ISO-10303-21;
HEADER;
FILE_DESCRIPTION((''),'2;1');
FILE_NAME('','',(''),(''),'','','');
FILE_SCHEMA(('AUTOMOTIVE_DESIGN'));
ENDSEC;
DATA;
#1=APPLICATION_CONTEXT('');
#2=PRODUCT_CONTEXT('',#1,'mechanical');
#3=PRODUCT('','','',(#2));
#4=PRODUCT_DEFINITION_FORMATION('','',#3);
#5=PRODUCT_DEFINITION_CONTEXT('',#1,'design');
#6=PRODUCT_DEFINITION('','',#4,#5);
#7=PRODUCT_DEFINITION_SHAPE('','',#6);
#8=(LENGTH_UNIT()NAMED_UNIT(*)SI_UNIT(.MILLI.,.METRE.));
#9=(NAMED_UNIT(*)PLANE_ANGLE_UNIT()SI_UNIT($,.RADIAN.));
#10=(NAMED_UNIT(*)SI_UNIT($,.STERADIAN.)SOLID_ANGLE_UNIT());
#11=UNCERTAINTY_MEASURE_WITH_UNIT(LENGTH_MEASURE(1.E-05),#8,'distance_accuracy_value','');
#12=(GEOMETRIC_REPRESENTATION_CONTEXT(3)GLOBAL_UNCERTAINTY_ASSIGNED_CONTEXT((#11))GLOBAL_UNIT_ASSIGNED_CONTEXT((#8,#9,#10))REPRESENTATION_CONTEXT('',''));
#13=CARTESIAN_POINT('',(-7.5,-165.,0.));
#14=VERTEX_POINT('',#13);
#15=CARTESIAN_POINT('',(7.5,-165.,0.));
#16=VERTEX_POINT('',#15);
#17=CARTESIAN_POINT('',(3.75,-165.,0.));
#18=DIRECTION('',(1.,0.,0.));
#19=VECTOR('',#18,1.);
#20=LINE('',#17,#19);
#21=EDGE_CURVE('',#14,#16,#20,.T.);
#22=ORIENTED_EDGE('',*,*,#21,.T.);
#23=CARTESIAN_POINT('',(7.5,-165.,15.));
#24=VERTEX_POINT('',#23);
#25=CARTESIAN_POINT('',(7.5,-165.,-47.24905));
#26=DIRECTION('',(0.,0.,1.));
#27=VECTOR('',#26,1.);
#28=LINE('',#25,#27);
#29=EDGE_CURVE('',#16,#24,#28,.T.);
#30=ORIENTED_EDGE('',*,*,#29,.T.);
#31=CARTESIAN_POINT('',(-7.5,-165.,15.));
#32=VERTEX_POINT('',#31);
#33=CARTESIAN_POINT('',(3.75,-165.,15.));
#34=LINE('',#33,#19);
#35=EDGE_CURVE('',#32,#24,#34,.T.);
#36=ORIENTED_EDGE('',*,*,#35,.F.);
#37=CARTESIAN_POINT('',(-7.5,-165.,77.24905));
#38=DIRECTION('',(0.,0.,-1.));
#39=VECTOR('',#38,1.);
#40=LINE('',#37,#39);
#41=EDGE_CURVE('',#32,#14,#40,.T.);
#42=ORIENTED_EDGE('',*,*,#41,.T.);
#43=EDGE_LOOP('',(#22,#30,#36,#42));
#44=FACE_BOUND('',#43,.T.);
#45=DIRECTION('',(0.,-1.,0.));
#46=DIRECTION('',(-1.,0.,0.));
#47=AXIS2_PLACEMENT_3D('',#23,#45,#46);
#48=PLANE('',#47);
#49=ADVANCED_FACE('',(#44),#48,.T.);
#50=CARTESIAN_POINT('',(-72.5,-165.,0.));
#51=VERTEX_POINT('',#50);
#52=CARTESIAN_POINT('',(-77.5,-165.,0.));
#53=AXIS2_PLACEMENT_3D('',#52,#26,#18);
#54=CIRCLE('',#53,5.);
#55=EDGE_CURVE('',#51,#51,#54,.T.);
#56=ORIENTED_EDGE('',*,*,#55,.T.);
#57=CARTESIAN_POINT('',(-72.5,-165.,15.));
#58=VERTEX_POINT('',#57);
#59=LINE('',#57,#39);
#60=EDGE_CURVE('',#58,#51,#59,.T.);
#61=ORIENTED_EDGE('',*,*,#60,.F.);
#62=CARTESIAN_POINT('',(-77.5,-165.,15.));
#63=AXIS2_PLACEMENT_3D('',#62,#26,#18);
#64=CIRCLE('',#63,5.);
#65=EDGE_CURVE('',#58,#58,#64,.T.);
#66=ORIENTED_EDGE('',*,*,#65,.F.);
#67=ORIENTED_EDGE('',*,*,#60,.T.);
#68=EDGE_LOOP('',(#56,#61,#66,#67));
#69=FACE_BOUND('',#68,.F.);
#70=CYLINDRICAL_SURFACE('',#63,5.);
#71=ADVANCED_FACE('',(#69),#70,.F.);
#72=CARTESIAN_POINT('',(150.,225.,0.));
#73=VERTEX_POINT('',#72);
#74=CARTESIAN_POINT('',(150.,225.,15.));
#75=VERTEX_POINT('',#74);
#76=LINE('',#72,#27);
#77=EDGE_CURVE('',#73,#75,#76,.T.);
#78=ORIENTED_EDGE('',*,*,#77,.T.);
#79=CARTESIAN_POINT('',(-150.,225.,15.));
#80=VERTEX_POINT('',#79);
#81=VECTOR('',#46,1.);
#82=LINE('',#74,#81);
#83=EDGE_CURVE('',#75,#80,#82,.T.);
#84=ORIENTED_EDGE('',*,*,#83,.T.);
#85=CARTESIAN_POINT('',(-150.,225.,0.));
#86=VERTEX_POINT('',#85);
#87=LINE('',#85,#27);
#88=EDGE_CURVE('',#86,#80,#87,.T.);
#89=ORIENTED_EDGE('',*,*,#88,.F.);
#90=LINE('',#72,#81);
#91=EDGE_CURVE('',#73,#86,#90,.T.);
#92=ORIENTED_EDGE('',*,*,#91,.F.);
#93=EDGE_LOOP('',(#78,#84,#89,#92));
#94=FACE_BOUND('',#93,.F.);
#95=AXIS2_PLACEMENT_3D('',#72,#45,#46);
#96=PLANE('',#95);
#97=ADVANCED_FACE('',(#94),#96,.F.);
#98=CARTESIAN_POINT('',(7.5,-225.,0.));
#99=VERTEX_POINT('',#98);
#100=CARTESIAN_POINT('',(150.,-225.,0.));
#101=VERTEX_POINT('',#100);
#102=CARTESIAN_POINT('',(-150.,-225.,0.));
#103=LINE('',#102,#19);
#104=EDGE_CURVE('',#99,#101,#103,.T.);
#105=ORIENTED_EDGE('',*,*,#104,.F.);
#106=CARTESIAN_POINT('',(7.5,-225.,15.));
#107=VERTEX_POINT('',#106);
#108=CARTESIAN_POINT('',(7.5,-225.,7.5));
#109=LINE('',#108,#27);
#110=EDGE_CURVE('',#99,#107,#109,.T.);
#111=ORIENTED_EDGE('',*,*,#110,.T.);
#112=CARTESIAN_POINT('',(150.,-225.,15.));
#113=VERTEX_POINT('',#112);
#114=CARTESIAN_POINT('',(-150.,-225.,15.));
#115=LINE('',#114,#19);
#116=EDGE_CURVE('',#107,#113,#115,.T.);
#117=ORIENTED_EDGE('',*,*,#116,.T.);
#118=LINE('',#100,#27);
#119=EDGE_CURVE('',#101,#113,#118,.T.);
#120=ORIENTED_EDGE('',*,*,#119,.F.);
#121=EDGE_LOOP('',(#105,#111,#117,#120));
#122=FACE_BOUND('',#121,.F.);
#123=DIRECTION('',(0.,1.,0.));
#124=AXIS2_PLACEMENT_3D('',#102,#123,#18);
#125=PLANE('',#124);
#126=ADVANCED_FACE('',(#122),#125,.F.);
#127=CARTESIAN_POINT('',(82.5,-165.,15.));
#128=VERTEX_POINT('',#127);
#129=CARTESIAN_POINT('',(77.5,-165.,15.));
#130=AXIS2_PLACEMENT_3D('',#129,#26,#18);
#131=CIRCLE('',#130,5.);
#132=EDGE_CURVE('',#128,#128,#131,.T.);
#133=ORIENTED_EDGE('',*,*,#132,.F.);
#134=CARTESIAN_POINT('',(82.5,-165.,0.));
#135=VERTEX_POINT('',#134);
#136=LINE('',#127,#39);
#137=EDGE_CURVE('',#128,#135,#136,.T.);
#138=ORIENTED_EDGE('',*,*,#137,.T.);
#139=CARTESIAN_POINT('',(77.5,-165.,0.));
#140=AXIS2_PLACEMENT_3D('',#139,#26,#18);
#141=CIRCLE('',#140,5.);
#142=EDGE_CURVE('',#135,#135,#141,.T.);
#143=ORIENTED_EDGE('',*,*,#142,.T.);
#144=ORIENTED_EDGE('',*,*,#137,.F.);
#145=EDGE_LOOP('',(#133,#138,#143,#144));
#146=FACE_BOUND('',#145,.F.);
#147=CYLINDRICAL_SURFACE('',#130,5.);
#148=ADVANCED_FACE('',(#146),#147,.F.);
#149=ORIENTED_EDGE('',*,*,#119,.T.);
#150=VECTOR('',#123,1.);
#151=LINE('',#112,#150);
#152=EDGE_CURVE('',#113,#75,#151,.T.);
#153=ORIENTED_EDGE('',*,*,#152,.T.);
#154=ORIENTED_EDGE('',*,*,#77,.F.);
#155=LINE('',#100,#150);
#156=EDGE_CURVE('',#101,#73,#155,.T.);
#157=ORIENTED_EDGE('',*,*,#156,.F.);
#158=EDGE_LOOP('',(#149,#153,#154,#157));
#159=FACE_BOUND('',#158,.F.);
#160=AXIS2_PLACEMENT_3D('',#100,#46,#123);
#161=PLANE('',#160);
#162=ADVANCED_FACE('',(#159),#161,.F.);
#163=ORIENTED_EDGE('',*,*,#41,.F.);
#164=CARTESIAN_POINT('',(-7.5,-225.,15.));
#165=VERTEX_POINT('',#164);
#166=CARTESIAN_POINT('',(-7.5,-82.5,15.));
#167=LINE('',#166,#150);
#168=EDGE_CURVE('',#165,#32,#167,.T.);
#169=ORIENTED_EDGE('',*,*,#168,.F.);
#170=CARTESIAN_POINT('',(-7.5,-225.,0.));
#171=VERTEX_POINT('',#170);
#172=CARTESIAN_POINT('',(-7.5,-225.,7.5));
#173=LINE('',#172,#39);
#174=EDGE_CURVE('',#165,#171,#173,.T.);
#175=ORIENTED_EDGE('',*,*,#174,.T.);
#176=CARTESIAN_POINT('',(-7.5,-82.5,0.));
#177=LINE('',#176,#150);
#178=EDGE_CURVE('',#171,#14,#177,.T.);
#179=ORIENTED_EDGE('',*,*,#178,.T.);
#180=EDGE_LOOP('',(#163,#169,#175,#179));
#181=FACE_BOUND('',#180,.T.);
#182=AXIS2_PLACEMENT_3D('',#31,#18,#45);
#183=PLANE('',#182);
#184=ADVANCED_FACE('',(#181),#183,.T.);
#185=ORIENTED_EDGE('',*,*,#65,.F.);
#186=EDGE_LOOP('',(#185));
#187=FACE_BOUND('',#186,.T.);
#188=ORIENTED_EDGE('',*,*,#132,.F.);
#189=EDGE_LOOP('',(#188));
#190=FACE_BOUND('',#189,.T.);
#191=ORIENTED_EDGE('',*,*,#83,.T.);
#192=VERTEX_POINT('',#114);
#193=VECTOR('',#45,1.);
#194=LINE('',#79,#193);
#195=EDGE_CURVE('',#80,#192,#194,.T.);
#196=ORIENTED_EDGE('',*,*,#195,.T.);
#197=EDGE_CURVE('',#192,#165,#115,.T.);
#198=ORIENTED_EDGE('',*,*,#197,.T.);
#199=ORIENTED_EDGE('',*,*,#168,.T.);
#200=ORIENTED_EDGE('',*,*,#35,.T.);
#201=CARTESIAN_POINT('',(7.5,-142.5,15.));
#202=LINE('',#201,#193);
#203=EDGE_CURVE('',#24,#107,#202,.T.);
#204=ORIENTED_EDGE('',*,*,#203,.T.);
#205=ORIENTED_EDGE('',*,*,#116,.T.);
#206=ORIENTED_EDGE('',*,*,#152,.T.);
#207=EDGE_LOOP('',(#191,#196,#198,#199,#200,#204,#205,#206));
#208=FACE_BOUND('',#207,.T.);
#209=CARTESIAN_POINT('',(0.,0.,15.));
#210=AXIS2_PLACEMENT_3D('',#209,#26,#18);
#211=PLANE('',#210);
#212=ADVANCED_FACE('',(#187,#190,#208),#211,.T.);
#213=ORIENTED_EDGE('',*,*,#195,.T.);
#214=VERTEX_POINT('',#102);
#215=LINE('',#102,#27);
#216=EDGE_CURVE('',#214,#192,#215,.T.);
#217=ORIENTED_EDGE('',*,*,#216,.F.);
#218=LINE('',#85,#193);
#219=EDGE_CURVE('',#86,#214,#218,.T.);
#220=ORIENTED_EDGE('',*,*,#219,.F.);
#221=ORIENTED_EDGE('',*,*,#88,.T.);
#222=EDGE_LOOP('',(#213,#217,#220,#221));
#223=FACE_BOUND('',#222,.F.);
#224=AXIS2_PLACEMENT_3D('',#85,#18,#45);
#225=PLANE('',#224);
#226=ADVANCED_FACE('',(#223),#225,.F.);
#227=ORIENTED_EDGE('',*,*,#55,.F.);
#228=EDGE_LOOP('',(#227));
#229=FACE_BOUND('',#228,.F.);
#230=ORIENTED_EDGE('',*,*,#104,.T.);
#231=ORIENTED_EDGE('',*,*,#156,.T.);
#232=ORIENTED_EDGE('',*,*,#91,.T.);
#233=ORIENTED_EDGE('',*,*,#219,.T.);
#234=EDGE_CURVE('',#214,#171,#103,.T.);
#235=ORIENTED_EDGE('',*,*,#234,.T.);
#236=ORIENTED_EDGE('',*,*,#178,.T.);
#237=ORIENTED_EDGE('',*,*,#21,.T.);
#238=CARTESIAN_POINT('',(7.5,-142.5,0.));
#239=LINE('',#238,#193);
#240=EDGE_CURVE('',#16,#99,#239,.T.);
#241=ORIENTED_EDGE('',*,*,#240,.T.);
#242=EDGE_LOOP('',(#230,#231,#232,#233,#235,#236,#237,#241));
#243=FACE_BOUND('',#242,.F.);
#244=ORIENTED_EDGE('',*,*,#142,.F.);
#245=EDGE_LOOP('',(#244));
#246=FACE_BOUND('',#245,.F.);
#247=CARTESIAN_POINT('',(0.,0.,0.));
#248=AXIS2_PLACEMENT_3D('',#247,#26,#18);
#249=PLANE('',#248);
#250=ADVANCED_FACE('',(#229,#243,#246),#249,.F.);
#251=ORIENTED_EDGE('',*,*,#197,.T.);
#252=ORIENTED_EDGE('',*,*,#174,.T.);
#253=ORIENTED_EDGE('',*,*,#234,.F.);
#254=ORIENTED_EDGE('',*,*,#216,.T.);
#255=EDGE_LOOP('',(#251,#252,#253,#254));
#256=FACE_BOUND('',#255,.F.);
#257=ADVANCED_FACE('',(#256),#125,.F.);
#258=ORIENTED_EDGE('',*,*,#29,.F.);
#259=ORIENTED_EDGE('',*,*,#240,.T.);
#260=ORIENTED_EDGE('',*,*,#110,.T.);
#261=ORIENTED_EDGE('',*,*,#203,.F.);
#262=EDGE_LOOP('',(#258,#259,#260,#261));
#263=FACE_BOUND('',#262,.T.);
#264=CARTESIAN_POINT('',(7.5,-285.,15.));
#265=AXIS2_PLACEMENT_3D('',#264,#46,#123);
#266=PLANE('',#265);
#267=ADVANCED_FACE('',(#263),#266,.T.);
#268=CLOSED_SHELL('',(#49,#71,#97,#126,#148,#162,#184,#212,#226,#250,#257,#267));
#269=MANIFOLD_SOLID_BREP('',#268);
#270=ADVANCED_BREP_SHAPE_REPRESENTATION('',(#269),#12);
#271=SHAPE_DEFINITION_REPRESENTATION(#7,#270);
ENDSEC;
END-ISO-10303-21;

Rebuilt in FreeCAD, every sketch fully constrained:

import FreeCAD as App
import Part
import Sketcher
from FreeCAD import Vector

doc = App.newDocument("Part")
body = doc.addObject("PartDesign::Body", "Body")

sketch1 = body.newObject("Sketcher::SketchObject", "Sketch")
sketch1.AttachmentSupport = (doc.getObject("XY_Plane"), [""])
sketch1.MapMode = "FlatFace"
sketch1.addGeometry(Part.LineSegment(Vector(-150, 225, 0), Vector(-150, -225, 0)), False)
sketch1.addGeometry(Part.LineSegment(Vector(-150, -225, 0), Vector(150, -225, 0)), False)
sketch1.addGeometry(Part.LineSegment(Vector(150, -225, 0), Vector(150, 225, 0)), False)
sketch1.addGeometry(Part.LineSegment(Vector(150, 225, 0), Vector(-150, 225, 0)), False)
sketch1.addConstraint(Sketcher.Constraint("Coincident", 0, 2, 1, 1))
sketch1.addConstraint(Sketcher.Constraint("Coincident", 1, 2, 2, 1))
sketch1.addConstraint(Sketcher.Constraint("Coincident", 2, 2, 3, 1))
sketch1.addConstraint(Sketcher.Constraint("Coincident", 3, 2, 0, 1))
sketch1.addConstraint(Sketcher.Constraint("Vertical", 0))
sketch1.addConstraint(Sketcher.Constraint("Horizontal", 1))
sketch1.addConstraint(Sketcher.Constraint("Vertical", 2))
sketch1.addConstraint(Sketcher.Constraint("Horizontal", 3))
sketch1.addConstraint(Sketcher.Constraint("Symmetric", 0, 2, 2, 2, -1, 1))
sketch1.addConstraint(Sketcher.Constraint("DistanceX", 1, 1, 1, 2, 300.0))
sketch1.addConstraint(Sketcher.Constraint("DistanceY", 0, 2, 0, 1, 450.0))
pad1 = body.newObject("PartDesign::Pad", "Pad")
pad1.Profile = sketch1
pad1.Length = 15

sketch2 = body.newObject("Sketcher::SketchObject", "Sketch001")
sketch2.AttachmentSupport = (doc.getObject("XY_Plane"), [""])
sketch2.MapMode = "FlatFace"
sketch2.AttachmentOffset = App.Placement(Vector(0, 0, 15), App.Rotation())
sketch2.addGeometry(Part.LineSegment(Vector(-7.5, -165, 0), Vector(-7.5, -285, 0)), False)
sketch2.addGeometry(Part.LineSegment(Vector(-7.5, -285, 0), Vector(7.5, -285, 0)), False)
sketch2.addGeometry(Part.LineSegment(Vector(7.5, -285, 0), Vector(7.5, -165, 0)), False)
sketch2.addGeometry(Part.LineSegment(Vector(7.5, -165, 0), Vector(-7.5, -165, 0)), False)
sketch2.addConstraint(Sketcher.Constraint("Coincident", 0, 2, 1, 1))
sketch2.addConstraint(Sketcher.Constraint("Coincident", 1, 2, 2, 1))
sketch2.addConstraint(Sketcher.Constraint("Coincident", 2, 2, 3, 1))
sketch2.addConstraint(Sketcher.Constraint("Coincident", 3, 2, 0, 1))
sketch2.addConstraint(Sketcher.Constraint("Vertical", 0))
sketch2.addConstraint(Sketcher.Constraint("Horizontal", 1))
sketch2.addConstraint(Sketcher.Constraint("Vertical", 2))
sketch2.addConstraint(Sketcher.Constraint("Horizontal", 3))
sketch2.addConstraint(Sketcher.Constraint("DistanceX", 1, 1, 1, 2, 15.0))
sketch2.addConstraint(Sketcher.Constraint("DistanceY", 0, 2, 0, 1, 120.0))
sketch2.addConstraint(Sketcher.Constraint("DistanceY", 0, 2, -1, 1, 285.0))
sketch2.addConstraint(Sketcher.Constraint("DistanceX", 0, 2, -1, 1, 7.5))
pocket1 = body.newObject("PartDesign::Pocket", "Pocket")
pocket1.Profile = sketch2
pocket1.Length = 124.4981
pocket1.Midplane = True

sketch3 = body.newObject("Sketcher::SketchObject", "Sketch002")
sketch3.AttachmentSupport = (doc.getObject("XY_Plane"), [""])
sketch3.MapMode = "FlatFace"
sketch3.AttachmentOffset = App.Placement(Vector(0, 0, 15), App.Rotation())
sketch3.addGeometry(Part.Circle(Vector(77.5, -165, 0), Vector(0, 0, 1), 5), False)
sketch3.addGeometry(Part.Circle(Vector(-77.5, -165, 0), Vector(0, 0, 1), 5), False)
sketch3.addConstraint(Sketcher.Constraint("Equal", 0, 1))
sketch3.addConstraint(Sketcher.Constraint("Symmetric", 0, 3, 1, 3, -2))
sketch3.addConstraint(Sketcher.Constraint("Diameter", 0, 10.0))
sketch3.addConstraint(Sketcher.Constraint("DistanceX", -1, 1, 0, 3, 77.5))
sketch3.addConstraint(Sketcher.Constraint("DistanceY", 0, 3, -1, 1, 165.0))
pocket2 = body.newObject("PartDesign::Pocket", "Pocket001")
pocket2.Profile = sketch3
pocket2.Length = 524.4577
pocket2.Midplane = True

doc.recompute()
